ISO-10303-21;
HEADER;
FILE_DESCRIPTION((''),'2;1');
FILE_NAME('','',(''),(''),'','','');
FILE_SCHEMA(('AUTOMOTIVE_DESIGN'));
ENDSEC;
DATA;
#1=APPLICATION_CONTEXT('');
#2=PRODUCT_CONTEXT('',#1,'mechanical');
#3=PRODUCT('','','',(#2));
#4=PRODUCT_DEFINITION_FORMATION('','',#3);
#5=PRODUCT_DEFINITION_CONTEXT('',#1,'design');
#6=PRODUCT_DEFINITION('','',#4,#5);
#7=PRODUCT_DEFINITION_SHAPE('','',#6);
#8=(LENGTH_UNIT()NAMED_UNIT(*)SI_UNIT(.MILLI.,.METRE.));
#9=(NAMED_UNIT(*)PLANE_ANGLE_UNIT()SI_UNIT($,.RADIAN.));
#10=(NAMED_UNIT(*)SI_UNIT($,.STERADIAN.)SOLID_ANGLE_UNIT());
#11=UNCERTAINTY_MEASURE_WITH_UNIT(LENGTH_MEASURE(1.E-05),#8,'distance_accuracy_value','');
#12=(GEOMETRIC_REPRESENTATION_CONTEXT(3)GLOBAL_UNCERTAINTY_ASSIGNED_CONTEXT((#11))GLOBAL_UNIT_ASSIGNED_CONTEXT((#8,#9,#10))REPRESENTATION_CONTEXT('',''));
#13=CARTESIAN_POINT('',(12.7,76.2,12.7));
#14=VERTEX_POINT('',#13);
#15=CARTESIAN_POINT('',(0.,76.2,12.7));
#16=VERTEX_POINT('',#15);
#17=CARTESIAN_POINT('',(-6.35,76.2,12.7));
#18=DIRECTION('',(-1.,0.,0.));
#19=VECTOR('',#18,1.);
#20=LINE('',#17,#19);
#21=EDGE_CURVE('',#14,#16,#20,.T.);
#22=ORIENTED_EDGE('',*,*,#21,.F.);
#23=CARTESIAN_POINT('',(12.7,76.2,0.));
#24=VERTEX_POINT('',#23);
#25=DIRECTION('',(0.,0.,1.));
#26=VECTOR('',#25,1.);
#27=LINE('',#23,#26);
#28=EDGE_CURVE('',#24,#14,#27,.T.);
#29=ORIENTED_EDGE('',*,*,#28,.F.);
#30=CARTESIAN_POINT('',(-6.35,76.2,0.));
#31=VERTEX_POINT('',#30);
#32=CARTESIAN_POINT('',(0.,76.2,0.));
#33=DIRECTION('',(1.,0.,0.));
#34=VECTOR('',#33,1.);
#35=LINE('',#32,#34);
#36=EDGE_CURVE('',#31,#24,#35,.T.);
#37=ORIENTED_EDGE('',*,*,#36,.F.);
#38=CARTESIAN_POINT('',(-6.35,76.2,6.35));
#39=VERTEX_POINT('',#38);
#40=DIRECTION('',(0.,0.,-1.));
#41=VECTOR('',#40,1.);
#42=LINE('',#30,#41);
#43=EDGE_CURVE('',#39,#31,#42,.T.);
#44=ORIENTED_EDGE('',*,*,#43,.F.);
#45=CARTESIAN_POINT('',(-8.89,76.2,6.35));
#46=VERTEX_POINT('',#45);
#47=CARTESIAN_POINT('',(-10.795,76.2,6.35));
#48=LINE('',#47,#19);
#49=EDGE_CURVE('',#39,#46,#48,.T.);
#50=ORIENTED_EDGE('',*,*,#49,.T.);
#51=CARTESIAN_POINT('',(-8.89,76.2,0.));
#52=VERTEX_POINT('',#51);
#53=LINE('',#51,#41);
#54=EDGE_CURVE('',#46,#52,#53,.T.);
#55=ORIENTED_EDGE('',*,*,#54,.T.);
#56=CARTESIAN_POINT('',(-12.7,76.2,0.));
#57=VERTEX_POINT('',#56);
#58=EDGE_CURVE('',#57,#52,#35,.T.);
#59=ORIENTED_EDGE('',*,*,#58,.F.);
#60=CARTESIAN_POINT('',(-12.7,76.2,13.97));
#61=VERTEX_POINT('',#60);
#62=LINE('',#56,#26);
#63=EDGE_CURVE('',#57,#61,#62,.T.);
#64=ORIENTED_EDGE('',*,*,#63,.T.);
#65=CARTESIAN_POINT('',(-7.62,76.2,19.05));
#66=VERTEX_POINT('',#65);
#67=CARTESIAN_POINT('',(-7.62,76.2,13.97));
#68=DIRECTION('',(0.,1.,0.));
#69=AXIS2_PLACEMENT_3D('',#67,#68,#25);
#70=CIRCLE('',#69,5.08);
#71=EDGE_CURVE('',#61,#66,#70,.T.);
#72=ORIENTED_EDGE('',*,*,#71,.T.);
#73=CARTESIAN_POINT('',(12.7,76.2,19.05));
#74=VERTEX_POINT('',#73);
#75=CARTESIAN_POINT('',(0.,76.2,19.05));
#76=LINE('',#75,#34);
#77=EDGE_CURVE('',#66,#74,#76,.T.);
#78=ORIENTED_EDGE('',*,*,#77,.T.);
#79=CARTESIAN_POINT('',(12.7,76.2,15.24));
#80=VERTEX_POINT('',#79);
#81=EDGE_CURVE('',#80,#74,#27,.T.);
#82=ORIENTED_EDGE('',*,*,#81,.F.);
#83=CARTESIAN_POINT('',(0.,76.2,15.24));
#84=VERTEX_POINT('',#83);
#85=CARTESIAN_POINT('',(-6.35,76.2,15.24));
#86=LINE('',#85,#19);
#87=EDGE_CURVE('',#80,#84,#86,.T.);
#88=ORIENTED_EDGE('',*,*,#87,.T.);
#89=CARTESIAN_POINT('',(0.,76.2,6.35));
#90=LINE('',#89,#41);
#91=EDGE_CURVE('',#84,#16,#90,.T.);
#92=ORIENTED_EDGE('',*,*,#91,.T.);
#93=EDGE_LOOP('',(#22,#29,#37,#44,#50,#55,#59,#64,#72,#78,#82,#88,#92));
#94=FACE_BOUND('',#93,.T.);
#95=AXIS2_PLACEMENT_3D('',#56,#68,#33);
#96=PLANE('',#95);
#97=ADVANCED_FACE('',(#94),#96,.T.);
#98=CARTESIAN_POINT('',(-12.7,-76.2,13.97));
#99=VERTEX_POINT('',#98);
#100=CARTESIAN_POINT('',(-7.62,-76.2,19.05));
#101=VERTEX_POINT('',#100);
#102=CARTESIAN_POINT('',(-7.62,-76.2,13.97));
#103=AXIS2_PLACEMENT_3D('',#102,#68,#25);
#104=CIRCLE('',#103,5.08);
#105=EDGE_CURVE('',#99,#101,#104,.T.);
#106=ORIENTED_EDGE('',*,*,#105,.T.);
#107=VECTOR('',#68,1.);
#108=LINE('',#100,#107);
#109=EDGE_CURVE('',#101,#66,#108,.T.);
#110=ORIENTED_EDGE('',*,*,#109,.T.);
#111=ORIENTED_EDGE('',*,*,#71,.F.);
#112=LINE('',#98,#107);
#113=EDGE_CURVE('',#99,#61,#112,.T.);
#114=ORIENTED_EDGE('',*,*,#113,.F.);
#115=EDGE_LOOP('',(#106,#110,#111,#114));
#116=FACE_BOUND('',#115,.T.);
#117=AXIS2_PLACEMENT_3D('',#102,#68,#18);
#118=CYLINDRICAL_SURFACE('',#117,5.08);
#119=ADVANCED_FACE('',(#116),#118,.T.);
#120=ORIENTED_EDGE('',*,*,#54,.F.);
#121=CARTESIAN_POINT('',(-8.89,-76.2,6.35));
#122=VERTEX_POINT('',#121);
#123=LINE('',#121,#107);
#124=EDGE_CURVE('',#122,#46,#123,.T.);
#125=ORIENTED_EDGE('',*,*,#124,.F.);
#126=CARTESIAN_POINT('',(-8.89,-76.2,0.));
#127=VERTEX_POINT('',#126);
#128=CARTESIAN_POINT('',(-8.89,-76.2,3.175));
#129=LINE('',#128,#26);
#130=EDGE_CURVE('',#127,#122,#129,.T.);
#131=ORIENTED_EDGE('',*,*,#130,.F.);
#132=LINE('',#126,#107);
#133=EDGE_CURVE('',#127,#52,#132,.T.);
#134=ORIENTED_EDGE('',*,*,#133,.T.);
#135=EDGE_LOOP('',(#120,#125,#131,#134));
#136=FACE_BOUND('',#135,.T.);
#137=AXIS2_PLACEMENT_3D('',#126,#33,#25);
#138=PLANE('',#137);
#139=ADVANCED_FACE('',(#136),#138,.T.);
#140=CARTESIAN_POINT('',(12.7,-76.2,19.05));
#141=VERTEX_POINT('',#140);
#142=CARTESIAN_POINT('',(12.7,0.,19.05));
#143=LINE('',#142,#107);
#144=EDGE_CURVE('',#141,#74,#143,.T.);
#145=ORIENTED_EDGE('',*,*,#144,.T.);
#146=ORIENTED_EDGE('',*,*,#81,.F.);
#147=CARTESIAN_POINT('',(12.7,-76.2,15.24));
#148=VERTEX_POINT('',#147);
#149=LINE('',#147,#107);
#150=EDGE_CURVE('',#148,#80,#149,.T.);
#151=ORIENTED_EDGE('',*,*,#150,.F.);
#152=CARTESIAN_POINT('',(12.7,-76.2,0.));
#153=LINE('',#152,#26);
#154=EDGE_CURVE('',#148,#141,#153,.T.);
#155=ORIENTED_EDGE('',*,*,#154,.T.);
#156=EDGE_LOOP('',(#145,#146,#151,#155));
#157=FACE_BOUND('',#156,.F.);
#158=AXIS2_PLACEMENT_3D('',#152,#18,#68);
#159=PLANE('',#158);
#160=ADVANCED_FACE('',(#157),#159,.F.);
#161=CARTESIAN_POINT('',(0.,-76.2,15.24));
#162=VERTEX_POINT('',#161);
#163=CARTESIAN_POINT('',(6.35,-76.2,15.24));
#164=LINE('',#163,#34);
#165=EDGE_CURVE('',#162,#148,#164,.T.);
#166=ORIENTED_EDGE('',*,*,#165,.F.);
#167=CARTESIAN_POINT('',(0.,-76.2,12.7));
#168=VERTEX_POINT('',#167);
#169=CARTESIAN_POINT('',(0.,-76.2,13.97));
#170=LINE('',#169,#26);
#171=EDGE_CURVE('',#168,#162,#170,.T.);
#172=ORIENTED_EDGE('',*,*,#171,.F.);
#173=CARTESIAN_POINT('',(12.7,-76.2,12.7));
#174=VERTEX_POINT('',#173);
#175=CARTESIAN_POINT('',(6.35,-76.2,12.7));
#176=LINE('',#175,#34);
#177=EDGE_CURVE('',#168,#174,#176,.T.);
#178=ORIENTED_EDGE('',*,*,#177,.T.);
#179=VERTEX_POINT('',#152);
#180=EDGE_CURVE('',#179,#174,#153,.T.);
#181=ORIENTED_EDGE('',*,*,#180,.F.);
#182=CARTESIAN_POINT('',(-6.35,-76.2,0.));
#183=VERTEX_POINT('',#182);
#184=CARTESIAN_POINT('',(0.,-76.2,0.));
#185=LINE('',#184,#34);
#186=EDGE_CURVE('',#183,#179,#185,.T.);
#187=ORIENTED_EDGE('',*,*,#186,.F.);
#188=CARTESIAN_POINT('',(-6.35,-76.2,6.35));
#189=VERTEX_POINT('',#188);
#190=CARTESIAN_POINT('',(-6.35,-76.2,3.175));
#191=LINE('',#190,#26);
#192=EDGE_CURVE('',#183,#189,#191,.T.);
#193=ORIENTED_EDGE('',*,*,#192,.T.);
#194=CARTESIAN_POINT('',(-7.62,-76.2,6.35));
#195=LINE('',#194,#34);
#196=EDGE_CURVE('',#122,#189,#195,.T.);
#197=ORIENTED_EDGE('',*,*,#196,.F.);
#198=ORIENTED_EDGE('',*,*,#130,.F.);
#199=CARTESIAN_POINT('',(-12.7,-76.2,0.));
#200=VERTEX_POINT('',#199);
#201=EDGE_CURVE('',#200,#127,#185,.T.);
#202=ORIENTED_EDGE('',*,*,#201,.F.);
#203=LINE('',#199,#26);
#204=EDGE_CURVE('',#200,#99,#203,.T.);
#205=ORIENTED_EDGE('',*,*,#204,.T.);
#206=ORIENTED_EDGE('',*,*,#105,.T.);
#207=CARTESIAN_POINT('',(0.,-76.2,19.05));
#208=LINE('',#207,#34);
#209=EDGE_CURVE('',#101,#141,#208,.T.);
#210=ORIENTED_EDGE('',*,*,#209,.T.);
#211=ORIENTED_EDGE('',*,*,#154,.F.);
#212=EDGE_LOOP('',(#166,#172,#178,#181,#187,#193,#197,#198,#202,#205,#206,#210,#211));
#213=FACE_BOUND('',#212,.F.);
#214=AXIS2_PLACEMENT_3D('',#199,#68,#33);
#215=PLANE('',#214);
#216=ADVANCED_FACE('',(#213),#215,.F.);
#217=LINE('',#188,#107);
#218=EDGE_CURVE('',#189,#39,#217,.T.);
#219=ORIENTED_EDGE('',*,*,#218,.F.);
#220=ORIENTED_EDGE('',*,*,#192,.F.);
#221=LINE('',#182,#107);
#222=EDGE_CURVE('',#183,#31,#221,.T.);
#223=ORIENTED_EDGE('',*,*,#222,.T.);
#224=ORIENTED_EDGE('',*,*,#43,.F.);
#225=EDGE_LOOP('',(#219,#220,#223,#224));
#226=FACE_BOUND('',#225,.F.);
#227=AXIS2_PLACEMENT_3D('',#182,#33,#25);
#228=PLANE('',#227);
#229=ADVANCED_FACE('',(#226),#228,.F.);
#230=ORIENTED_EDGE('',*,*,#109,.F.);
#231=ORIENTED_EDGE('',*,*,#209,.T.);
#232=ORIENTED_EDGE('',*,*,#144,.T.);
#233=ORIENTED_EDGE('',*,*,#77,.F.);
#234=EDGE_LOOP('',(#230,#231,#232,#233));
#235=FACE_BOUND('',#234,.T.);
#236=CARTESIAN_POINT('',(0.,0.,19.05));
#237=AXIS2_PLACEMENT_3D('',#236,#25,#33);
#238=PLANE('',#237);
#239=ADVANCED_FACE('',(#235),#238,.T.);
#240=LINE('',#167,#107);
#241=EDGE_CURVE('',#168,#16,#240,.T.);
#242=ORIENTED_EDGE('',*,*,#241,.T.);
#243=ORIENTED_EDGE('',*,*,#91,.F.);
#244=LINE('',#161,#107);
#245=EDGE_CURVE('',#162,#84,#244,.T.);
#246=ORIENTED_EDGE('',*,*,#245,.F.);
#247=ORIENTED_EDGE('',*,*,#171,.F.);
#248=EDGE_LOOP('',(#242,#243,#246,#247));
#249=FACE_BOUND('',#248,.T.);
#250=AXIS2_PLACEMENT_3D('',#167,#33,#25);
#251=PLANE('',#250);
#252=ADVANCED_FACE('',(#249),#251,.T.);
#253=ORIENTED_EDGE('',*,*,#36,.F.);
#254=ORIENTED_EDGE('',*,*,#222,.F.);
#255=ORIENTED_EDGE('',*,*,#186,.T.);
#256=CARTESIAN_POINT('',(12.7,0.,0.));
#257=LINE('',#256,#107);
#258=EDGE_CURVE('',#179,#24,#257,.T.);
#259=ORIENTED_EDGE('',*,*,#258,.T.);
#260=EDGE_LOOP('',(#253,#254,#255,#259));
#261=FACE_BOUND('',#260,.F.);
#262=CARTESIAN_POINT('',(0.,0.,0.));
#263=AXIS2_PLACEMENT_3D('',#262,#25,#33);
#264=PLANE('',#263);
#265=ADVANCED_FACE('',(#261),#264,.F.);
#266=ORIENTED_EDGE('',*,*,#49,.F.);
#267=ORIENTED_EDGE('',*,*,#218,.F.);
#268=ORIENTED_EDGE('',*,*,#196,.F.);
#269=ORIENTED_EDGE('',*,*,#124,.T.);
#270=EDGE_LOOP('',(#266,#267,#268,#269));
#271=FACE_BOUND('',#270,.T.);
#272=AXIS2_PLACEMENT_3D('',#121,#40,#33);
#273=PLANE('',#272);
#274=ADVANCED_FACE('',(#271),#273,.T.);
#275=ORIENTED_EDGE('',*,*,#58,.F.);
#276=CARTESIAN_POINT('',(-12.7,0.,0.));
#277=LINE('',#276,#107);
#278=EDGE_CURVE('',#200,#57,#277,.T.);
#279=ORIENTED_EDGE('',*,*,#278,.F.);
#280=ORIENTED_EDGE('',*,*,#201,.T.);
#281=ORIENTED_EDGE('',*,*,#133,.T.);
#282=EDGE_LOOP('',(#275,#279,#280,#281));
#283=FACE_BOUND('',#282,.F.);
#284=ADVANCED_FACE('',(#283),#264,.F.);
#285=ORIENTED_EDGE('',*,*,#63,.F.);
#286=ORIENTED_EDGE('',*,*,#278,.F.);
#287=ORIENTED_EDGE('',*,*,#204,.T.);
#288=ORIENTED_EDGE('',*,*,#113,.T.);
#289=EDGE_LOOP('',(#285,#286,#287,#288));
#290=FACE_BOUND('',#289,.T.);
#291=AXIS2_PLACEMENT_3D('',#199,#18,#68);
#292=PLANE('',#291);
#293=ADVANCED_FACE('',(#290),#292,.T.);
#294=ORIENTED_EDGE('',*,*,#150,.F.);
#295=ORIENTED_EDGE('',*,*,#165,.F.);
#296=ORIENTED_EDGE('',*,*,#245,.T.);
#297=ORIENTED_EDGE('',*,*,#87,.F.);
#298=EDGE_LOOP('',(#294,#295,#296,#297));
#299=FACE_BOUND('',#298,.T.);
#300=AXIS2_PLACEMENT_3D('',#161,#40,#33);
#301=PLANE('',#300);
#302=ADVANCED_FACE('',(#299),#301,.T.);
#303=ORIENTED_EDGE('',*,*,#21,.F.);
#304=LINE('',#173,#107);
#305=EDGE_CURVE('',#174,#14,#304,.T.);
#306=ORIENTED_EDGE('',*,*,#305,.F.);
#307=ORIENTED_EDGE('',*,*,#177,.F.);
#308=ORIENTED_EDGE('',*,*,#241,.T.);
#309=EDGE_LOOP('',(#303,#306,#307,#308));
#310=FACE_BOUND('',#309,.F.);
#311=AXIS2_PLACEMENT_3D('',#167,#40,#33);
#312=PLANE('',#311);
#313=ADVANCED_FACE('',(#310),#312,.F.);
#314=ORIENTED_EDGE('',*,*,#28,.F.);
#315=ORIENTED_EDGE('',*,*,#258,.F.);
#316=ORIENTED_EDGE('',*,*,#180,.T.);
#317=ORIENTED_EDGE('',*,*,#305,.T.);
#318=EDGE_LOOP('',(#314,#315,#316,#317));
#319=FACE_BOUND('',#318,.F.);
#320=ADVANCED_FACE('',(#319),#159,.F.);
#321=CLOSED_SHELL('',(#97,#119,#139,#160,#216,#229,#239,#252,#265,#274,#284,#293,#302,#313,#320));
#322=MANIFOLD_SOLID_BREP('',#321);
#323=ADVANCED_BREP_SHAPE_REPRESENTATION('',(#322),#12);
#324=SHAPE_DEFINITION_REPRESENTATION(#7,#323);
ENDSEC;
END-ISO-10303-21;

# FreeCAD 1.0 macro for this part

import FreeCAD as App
import Part
import Sketcher
Q = App.Units.Quantity


def edges_at(feature, points):
    """Names of the edges that pass closest to the given points."""
    edges = feature.Shape.Edges
    near = lambda p: min(range(len(edges)), key=lambda i: edges[i].distToShape(Part.Vertex(*p))[0])
    return sorted({f"Edge{near(p) + 1}" for p in points})

doc = App.newDocument("Part")
body = doc.addObject("PartDesign::Body", "Body")

sketch1 = body.newObject("Sketcher::SketchObject", "Sketch")
sketch1.AttachmentSupport = (doc.getObject("XY_Plane"), [""])
sketch1.MapMode = "FlatFace"
sketch1.addGeometry([
    Part.LineSegment(App.Vector(-13, 76, 0), App.Vector(-13, -76, 0)),
    Part.LineSegment(App.Vector(-13, -76, 0), App.Vector(13, -76, 0)),
    Part.LineSegment(App.Vector(13, -76, 0), App.Vector(13, 76, 0)),
    Part.LineSegment(App.Vector(13, 76, 0), App.Vector(-13, 76, 0)),
], False)
sketch1.addConstraint([
    Sketcher.Constraint("Coincident", 0, 2, 1, 1),
    Sketcher.Constraint("Coincident", 1, 2, 2, 1),
    Sketcher.Constraint("Coincident", 2, 2, 3, 1),
    Sketcher.Constraint("Coincident", 3, 2, 0, 1),
    Sketcher.Constraint("Vertical", 0),
    Sketcher.Constraint("Horizontal", 1),
    Sketcher.Constraint("Vertical", 2),
    Sketcher.Constraint("Horizontal", 3),
    Sketcher.Constraint("Symmetric", 0, 2, 2, 2, -1, 1),
    Sketcher.Constraint("DistanceX", 1, 1, 1, 2, Q("1 in")),
    Sketcher.Constraint("DistanceY", 0, 2, 0, 1, Q("6 in")),
])
pad1 = body.newObject("PartDesign::Pad", "Pad")
pad1.Profile = sketch1
pad1.Length = Q("0.75 in")

sketch2 = body.newObject("Sketcher::SketchObject", "Sketch001")
sketch2.AttachmentSupport = (doc.getObject("XZ_Plane"), [""])
sketch2.MapMode = "FlatFace"
sketch2.AttachmentOffset = App.Placement(App.Vector(0, 0, 3 * 25.4), App.Rotation())
sketch2.addGeometry([
    Part.LineSegment(App.Vector(0, 15.2, 0), App.Vector(0, 12.7, 0)),
    Part.LineSegment(App.Vector(0, 12.7, 0), App.Vector(12.7, 12.7, 0)),
    Part.LineSegment(App.Vector(12.7, 12.7, 0), App.Vector(12.7, 15.2, 0)),
    Part.LineSegment(App.Vector(12.7, 15.2, 0), App.Vector(0, 15.2, 0)),
    Part.LineSegment(App.Vector(-8.9, 6.3, 0), App.Vector(-8.9, 0, 0)),
    Part.LineSegment(App.Vector(-8.9, 0, 0), App.Vector(-6.3, 0, 0)),
    Part.LineSegment(App.Vector(-6.3, 0, 0), App.Vector(-6.3, 6.3, 0)),
    Part.LineSegment(App.Vector(-6.3, 6.3, 0), App.Vector(-8.9, 6.3, 0)),
], False)
sketch2.addConstraint([
    Sketcher.Constraint("Coincident", 0, 2, 1, 1),
    Sketcher.Constraint("Coincident", 1, 2, 2, 1),
    Sketcher.Constraint("Coincident", 2, 2, 3, 1),
    Sketcher.Constraint("Coincident", 3, 2, 0, 1),
    Sketcher.Constraint("Coincident", 4, 2, 5, 1),
    Sketcher.Constraint("Coincident", 5, 2, 6, 1),
    Sketcher.Constraint("Coincident", 6, 2, 7, 1),
    Sketcher.Constraint("Coincident", 7, 2, 4, 1),
    Sketcher.Constraint("Vertical", 0),
    Sketcher.Constraint("Horizontal", 1),
    Sketcher.Constraint("Vertical", 2),
    Sketcher.Constraint("Horizontal", 3),
    Sketcher.Constraint("Vertical", 4),
    Sketcher.Constraint("Horizontal", 5),
    Sketcher.Constraint("Vertical", 6),
    Sketcher.Constraint("Horizontal", 7),
    Sketcher.Constraint("PointOnObject", 0, 2, -2),
    Sketcher.Constraint("PointOnObject", 4, 2, -1),
    Sketcher.Constraint("Equal", 7, 0),
    Sketcher.Constraint("DistanceX", 1, 1, 1, 2, Q("0.5 in")),
    Sketcher.Constraint("DistanceX", 5, 1, 5, 2, Q("0.1 in")),
    Sketcher.Constraint("DistanceY", 4, 2, 4, 1, Q("0.25 in")),
    Sketcher.Constraint("DistanceY", -1, 1, 0, 2, Q("0.5 in")),
    Sketcher.Constraint("DistanceX", 4, 2, -1, 1, Q("0.35 in")),
])
pocket1 = body.newObject("PartDesign::Pocket", "Pocket")
pocket1.Profile = sketch2
pocket1.Length = Q("7 in")
doc.recompute()

fillet = body.newObject("PartDesign::Fillet", "Fillet")
fillet.Base = (pocket1, edges_at(pocket1, [(-12.7, 0, 19.05)]))
fillet.Radius = Q("0.2 in")

doc.recompute()
